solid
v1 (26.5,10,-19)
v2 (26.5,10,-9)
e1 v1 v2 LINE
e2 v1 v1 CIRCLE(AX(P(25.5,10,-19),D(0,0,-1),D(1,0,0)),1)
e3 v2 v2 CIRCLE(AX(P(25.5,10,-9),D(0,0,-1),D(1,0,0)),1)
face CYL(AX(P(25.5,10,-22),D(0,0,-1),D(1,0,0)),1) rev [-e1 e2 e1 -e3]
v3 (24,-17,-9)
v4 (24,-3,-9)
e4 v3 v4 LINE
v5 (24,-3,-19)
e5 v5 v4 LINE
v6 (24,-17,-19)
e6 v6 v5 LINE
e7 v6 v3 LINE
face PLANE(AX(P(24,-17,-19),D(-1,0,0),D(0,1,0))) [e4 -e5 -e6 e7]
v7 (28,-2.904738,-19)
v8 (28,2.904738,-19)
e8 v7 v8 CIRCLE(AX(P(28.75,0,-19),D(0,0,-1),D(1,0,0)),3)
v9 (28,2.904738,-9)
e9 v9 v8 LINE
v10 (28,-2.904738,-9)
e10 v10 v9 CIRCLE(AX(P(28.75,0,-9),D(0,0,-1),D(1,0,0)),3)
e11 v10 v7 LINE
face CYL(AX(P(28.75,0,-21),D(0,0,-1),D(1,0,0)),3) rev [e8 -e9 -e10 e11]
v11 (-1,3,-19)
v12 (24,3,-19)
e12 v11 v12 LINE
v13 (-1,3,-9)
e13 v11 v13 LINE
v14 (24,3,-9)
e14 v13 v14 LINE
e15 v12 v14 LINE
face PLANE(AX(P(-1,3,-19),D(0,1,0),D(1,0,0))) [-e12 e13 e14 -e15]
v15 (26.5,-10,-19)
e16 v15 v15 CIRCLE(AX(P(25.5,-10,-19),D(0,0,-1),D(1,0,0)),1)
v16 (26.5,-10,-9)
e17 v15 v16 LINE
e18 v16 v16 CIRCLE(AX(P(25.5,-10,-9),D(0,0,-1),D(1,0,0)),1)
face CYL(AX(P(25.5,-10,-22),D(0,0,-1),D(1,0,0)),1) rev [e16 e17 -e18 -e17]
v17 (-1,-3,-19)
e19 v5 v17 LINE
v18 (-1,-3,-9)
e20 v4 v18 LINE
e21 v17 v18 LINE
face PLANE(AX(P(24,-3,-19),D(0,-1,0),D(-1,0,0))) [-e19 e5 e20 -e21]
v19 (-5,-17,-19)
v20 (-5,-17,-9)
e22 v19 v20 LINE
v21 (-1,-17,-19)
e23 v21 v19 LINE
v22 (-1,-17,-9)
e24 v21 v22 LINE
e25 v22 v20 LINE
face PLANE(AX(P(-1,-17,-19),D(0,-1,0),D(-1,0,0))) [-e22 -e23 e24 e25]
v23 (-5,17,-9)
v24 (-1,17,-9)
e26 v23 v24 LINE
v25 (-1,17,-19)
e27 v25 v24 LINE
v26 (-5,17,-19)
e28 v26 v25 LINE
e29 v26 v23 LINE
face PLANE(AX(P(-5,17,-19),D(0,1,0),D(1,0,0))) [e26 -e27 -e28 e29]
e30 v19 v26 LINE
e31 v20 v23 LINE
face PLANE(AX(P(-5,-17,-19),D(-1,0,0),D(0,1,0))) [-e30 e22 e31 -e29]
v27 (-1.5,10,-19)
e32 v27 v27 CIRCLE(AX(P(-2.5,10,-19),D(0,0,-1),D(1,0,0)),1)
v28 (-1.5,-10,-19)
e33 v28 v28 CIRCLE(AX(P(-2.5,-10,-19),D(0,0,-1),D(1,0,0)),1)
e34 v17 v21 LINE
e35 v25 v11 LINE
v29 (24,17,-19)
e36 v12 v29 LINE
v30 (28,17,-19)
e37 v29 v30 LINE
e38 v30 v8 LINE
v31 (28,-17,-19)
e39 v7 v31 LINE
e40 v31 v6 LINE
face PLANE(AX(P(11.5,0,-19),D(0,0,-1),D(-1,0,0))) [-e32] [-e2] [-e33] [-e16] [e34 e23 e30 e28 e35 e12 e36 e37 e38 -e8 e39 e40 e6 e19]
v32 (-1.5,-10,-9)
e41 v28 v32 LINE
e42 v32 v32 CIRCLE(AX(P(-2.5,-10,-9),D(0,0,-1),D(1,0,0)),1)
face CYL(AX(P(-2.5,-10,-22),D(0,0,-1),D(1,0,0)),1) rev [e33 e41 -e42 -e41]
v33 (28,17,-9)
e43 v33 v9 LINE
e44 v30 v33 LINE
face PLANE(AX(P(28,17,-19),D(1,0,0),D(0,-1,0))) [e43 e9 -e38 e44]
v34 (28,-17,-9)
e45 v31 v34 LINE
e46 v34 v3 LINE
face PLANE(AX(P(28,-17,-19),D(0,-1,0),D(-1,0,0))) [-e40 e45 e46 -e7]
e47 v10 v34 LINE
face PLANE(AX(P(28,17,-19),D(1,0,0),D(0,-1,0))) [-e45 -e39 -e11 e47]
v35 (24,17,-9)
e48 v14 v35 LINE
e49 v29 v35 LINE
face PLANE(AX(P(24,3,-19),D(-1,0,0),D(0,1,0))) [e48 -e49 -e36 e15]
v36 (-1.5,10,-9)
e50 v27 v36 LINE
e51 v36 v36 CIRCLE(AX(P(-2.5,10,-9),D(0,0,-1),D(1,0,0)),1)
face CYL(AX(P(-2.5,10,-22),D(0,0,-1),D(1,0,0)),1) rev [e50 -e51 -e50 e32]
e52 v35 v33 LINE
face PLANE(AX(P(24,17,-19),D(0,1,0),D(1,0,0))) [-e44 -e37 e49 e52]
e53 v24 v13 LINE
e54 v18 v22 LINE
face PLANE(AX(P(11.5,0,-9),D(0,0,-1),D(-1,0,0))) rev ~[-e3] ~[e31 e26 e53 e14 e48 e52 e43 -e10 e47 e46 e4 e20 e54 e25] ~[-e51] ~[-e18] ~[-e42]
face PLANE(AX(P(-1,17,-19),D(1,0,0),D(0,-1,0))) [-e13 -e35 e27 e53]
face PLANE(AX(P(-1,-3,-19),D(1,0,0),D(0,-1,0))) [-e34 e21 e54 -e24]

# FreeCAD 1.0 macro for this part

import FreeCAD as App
import Part
import Sketcher


def add_polygon(sketch, points):
    """Adds a closed chain of lines whose ends are joined by coincident constraints."""
    first, n = sketch.GeometryCount, len(points)
    for a, b in zip(points, points[1:] + points[:1]):
        sketch.addGeometry(Part.LineSegment(App.Vector(*a, 0), App.Vector(*b, 0)), False)
    for i in range(n):
        sketch.addConstraint(Sketcher.Constraint("Coincident", first + i, 2, first + (i + 1) % n, 1))

doc = App.newDocument("Part")
params = doc.addObject("Spreadsheet::Sheet", "Params")
for row, (alias, value) in enumerate([
    ("sketch1_diameter", "6 mm"),
    ("pad1_length", "20 mm"),
    ("sketch2_diameter", "2 mm"),
    ("pad2_length", "15 mm"),
    ("sketch3_diameter", "2 mm"),
    ("pad3_length", "15 mm"),
    ("sketch4_diameter", "2 mm"),
    ("pad4_length", "15 mm"),
    ("sketch5_diameter", "2 mm"),
    ("pad5_length", "15 mm"),
    ("sketch6_width", "4 mm"),
    ("sketch6_width2", "25 mm"),
    ("sketch6_height", "34 mm"),
    ("sketch6_height2", "14 mm"),
    ("pad6_length", "10 mm"),
], start=1):
    params.set(f"A{row}", alias)
    params.set(f"B{row}", "=" + value)
    params.setAlias(f"B{row}", alias)

body = doc.addObject("PartDesign::Body", "Body")

# Sketch on XY plane
sketch1 = doc.addObject("Sketcher::SketchObject", "Sketch")
body.addObject(sketch1)
sketch1.AttachmentSupport = (doc.XY_Plane, [""])
sketch1.MapMode = "FlatFace"
sketch1.AttachmentOffset = App.Placement(App.Vector(0, 0, -21), App.Rotation())
sketch1.addGeometry(Part.Circle(App.Vector(28.8, 0, 0), App.Vector(0, 0, 1), 3), False)
sketch1.addConstraint(Sketcher.Constraint("PointOnObject", 0, 3, -1))
sketch1.addConstraint(Sketcher.Constraint("Diameter", 0, 6.0))
sketch1.addConstraint(Sketcher.Constraint("DistanceX", -1, 1, 0, 3, 28.75))
sketch1.setExpression("Constraints[1]", "Params.sketch1_diameter")
pad1 = doc.addObject("PartDesign::Pad", "Pad")
body.addObject(pad1)
pad1.Profile = sketch1
pad1.setExpression("Length", "Params.pad1_length")
body2 = doc.addObject("PartDesign::Body", "Body001")

# Sketch on XY plane
sketch2 = doc.addObject("Sketcher::SketchObject", "Sketch001")
body2.addObject(sketch2)
sketch2.AttachmentSupport = (doc.getObject("XY_Plane001"), [""])
sketch2.MapMode = "FlatFace"
sketch2.AttachmentOffset = App.Placement(App.Vector(0, 0, -20), App.Rotation())
sketch2.addGeometry(Part.Circle(App.Vector(25.5, -10, 0), App.Vector(0, 0, 1), 1), False)
sketch2.addConstraint(Sketcher.Constraint("Diameter", 0, 2.0))
sketch2.addConstraint(Sketcher.Constraint("DistanceY", 0, 3, -1, 1, 10.0))
sketch2.addConstraint(Sketcher.Constraint("DistanceX", -1, 1, 0, 3, 25.5))
sketch2.setExpression("Constraints[0]", "Params.sketch2_diameter")
pad2 = doc.addObject("PartDesign::Pad", "Pad001")
body2.addObject(pad2)
pad2.Profile = sketch2
pad2.setExpression("Length", "Params.pad2_length")
body3 = doc.addObject("PartDesign::Body", "Body002")

# Sketch on XY plane
sketch3 = doc.addObject("Sketcher::SketchObject", "Sketch002")
body3.addObject(sketch3)
sketch3.AttachmentSupport = (doc.getObject("XY_Plane002"), [""])
sketch3.MapMode = "FlatFace"
sketch3.AttachmentOffset = App.Placement(App.Vector(0, 0, -20), App.Rotation())
sketch3.addGeometry(Part.Circle(App.Vector(25.5, 10, 0), App.Vector(0, 0, 1), 1), False)
sketch3.addConstraint(Sketcher.Constraint("Diameter", 0, 2.0))
sketch3.addConstraint(Sketcher.Constraint("DistanceY", -1, 1, 0, 3, 10.0))
sketch3.addConstraint(Sketcher.Constraint("DistanceX", -1, 1, 0, 3, 25.5))
sketch3.setExpression("Constraints[0]", "Params.sketch3_diameter")
pad3 = doc.addObject("PartDesign::Pad", "Pad002")
body3.addObject(pad3)
pad3.Profile = sketch3
pad3.setExpression("Length", "Params.pad3_length")
body4 = doc.addObject("PartDesign::Body", "Body003")

# Sketch on XY plane
sketch4 = doc.addObject("Sketcher::SketchObject", "Sketch003")
body4.addObject(sketch4)
sketch4.AttachmentSupport = (doc.getObject("XY_Plane003"), [""])
sketch4.MapMode = "FlatFace"
sketch4.AttachmentOffset = App.Placement(App.Vector(0, 0, -20), App.Rotation())
sketch4.addGeometry(Part.Circle(App.Vector(-2.5, -10, 0), App.Vector(0, 0, 1), 1), False)
sketch4.addConstraint(Sketcher.Constraint("Diameter", 0, 2.0))
sketch4.addConstraint(Sketcher.Constraint("DistanceY", 0, 3, -1, 1, 10.0))
sketch4.addConstraint(Sketcher.Constraint("DistanceX", 0, 3, -1, 1, 2.5))
sketch4.setExpression("Constraints[0]", "Params.sketch4_diameter")
pad4 = doc.addObject("PartDesign::Pad", "Pad003")
body4.addObject(pad4)
pad4.Profile = sketch4
pad4.setExpression("Length", "Params.pad4_length")
body5 = doc.addObject("PartDesign::Body", "Body004")
body5.AllowCompound = True

# Sketch on XY plane
sketch5 = doc.addObject("Sketcher::SketchObject", "Sketch004")
body5.addObject(sketch5)
sketch5.AttachmentSupport = (doc.getObject("XY_Plane004"), [""])
sketch5.MapMode = "FlatFace"
sketch5.AttachmentOffset = App.Placement(App.Vector(0, 0, -20), App.Rotation())
sketch5.addGeometry(Part.Circle(App.Vector(-2.5, 10, 0), App.Vector(0, 0, 1), 1), False)
sketch5.addConstraint(Sketcher.Constraint("Diameter", 0, 2.0))
sketch5.addConstraint(Sketcher.Constraint("DistanceY", -1, 1, 0, 3, 10.0))
sketch5.addConstraint(Sketcher.Constraint("DistanceX", 0, 3, -1, 1, 2.5))
sketch5.setExpression("Constraints[0]", "Params.sketch5_diameter")
pad5 = doc.addObject("PartDesign::Pad", "Pad004")
body5.addObject(pad5)
pad5.Profile = sketch5
pad5.setExpression("Length", "Params.pad5_length")
doc.recompute()

boolean = doc.addObject("PartDesign::Boolean", "Boolean")
body5.addObject(boolean)
boolean.Type = "Fuse"
boolean.addObjects([body2])
doc.recompute()

boolean2 = doc.addObject("PartDesign::Boolean", "Boolean001")
body5.addObject(boolean2)
boolean2.Type = "Fuse"
boolean2.addObjects([body3])
doc.recompute()

boolean3 = doc.addObject("PartDesign::Boolean", "Boolean002")
body5.addObject(boolean3)
boolean3.Type = "Fuse"
boolean3.addObjects([body4])
body6 = doc.addObject("PartDesign::Body", "Body005")
body6.AllowCompound = True
doc.recompute()

body5.Placement = App.Placement(App.Vector(0, 0, 17), App.Rotation(App.Vector(0, 0, 1), 0))
boolean4 = doc.addObject("PartDesign::Boolean", "Boolean003")
body6.addObject(boolean4)
boolean4.Type = "Fuse"
boolean4.addObjects([body5])
body7 = doc.addObject("PartDesign::Body", "Body006")

# Sketch on XY plane
sketch6 = doc.addObject("Sketcher::SketchObject", "Sketch005")
body7.addObject(sketch6)
sketch6.AttachmentSupport = (doc.getObject("XY_Plane006"), [""])
sketch6.MapMode = "FlatFace"
add_polygon(sketch6, [(-1, 17), (-5, 17), (-5, -17), (-1, -17), (-1, -3), (24, -3), (24, -17), (28, -17), (28, 17), (24, 17), (24, 3), (-1, 3)])  # lines 0-11
sketch6.addConstraint(Sketcher.Constraint("Horizontal", 0))
sketch6.addConstraint(Sketcher.Constraint("Vertical", 1))
sketch6.addConstraint(Sketcher.Constraint("Horizontal", 2))
sketch6.addConstraint(Sketcher.Constraint("Vertical", 3))
sketch6.addConstraint(Sketcher.Constraint("Horizontal", 4))
sketch6.addConstraint(Sketcher.Constraint("Vertical", 5))
sketch6.addConstraint(Sketcher.Constraint("Horizontal", 6))
sketch6.addConstraint(Sketcher.Constraint("Vertical", 7))
sketch6.addConstraint(Sketcher.Constraint("Horizontal", 8))
sketch6.addConstraint(Sketcher.Constraint("Vertical", 9))
sketch6.addConstraint(Sketcher.Constraint("Horizontal", 10))
sketch6.addConstraint(Sketcher.Constraint("Vertical", 11))
sketch6.addConstraint(Sketcher.Constraint("Symmetric", 5, 2, 8, 2, -1))
sketch6.addConstraint(Sketcher.Constraint("Symmetric", 3, 2, 10, 2, -1))
sketch6.addConstraint(Sketcher.Constraint("Horizontal", 2, 2, 5, 2))
sketch6.addConstraint(Sketcher.Constraint("Horizontal", 0, 2, 7, 2))
sketch6.addConstraint(Sketcher.Constraint("Equal", 2, 6))
sketch6.addConstraint(Sketcher.Constraint("DistanceX", 0, 2, 0, 1, 4.0))
sketch6.addConstraint(Sketcher.Constraint("DistanceX", 4, 1, 4, 2, 25.0))
sketch6.addConstraint(Sketcher.Constraint("DistanceY", 1, 2, 1, 1, 34.0))
sketch6.addConstraint(Sketcher.Constraint("DistanceY", 3, 1, 3, 2, 14.0))
sketch6.addConstraint(Sketcher.Constraint("DistanceX", 0, 2, -1, 1, 5.0))
sketch6.setExpression("Constraints[29]", "Params.sketch6_width")
sketch6.setExpression("Constraints[30]", "Params.sketch6_width2")
sketch6.setExpression("Constraints[31]", "Params.sketch6_height")
sketch6.setExpression("Constraints[32]", "Params.sketch6_height2")
pad6 = doc.addObject("PartDesign::Pad", "Pad005")
body7.addObject(pad6)
pad6.Profile = sketch6
pad6.setExpression("Length", "Params.pad6_length")
doc.recompute()

boolean5 = doc.addObject("PartDesign::Boolean", "Boolean004")
body7.addObject(boolean5)
boolean5.Type = "Cut"
boolean5.addObjects([body6])
body8 = doc.addObject("PartDesign::Body", "Body007")
doc.recompute()

body7.Placement = App.Placement(App.Vector(0, 0, -19), App.Rotation(App.Vector(0, 0, 1), 0))
boolean6 = doc.addObject("PartDesign::Boolean", "Boolean005")
body8.addObject(boolean6)
boolean6.Type = "Fuse"
boolean6.addObjects([body7])
doc.recompute()

boolean7 = doc.addObject("PartDesign::Boolean", "Boolean006")
body8.addObject(boolean7)
boolean7.Type = "Cut"
boolean7.addObjects([body])

doc.recompute()
